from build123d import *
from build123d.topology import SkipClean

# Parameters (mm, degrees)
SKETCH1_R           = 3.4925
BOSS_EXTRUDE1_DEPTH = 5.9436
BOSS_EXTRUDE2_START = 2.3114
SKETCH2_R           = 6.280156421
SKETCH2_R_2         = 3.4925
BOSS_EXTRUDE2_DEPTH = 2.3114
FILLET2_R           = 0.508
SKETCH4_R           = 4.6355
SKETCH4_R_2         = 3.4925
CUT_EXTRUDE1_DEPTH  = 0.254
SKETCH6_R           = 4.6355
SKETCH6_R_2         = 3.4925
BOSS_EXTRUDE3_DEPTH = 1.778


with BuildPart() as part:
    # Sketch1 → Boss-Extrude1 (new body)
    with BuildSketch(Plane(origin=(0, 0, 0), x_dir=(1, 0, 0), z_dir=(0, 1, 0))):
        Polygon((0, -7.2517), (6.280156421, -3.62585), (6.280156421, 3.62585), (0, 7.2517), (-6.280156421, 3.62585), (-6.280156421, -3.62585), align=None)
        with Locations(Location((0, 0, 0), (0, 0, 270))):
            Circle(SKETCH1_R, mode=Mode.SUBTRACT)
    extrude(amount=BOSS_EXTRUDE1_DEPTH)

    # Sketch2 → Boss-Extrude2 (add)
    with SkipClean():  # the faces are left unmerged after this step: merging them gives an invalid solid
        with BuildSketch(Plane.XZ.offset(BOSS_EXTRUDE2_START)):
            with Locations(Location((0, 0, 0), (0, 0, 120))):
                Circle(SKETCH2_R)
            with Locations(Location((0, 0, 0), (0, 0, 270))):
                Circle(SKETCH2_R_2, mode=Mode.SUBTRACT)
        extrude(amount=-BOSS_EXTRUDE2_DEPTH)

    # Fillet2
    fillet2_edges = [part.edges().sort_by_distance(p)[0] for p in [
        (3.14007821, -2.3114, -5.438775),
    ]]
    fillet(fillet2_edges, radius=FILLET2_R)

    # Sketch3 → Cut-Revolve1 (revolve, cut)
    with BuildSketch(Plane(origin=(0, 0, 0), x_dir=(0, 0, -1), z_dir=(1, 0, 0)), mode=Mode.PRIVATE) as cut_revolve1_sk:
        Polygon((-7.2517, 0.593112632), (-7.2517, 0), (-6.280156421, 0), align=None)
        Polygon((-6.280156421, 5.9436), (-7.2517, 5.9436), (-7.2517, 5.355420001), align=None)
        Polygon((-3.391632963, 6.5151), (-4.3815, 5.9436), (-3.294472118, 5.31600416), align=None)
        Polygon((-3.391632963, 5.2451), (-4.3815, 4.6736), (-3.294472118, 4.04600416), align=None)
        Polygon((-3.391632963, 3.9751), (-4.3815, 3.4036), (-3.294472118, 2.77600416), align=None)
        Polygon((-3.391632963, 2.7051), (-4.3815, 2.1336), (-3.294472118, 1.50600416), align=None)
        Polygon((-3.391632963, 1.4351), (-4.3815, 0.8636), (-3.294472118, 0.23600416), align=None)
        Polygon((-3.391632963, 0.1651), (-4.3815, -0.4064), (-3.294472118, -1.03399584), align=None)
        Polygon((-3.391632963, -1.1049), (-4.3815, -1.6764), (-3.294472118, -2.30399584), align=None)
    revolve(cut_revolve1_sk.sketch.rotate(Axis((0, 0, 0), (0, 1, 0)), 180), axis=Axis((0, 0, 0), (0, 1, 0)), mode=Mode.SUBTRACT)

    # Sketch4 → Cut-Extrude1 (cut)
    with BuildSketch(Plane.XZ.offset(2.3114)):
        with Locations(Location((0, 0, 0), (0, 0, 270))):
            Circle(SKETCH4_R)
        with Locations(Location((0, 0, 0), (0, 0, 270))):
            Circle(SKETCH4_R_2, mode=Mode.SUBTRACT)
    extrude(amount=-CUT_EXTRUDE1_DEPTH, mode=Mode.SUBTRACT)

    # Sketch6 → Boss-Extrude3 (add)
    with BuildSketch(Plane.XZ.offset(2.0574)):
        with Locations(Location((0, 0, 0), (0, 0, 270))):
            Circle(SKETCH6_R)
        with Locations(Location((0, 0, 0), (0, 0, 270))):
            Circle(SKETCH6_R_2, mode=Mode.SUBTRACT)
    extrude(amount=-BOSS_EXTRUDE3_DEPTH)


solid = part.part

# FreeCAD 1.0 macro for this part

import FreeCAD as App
import Part
import Sketcher
Q = App.Units.Quantity


def edges_at(feature, points):
    """Names of the edges that pass closest to the given points."""
    edges = feature.Shape.Edges
    near = lambda p: min(range(len(edges)), key=lambda i: edges[i].distToShape(Part.Vertex(*p))[0])
    return sorted({f"Edge{near(p) + 1}" for p in points})

doc = App.newDocument("Part")
body = doc.addObject("PartDesign::Body", "Body")

# Sketch on XZ plane
sketch1 = doc.addObject("Sketcher::SketchObject", "Sketch")
body.addObject(sketch1)
sketch1.AttachmentSupport = (doc.XZ_Plane, [""])
sketch1.MapMode = "FlatFace"
sketch1.addGeometry(Part.LineSegment(App.Vector(0, 7.2517, 0), App.Vector(6.280156, 3.62585, 0)), False)
sketch1.addGeometry(Part.LineSegment(App.Vector(6.280156, 3.62585, 0), App.Vector(6.280156, -3.62585, 0)), False)
sketch1.addGeometry(Part.LineSegment(App.Vector(6.280156, -3.62585, 0), App.Vector(0, -7.2517, 0)), False)
sketch1.addGeometry(Part.LineSegment(App.Vector(0, -7.2517, 0), App.Vector(-6.280156, -3.62585, 0)), False)
sketch1.addGeometry(Part.LineSegment(App.Vector(-6.280156, -3.62585, 0), App.Vector(-6.280156, 3.62585, 0)), False)
sketch1.addGeometry(Part.LineSegment(App.Vector(-6.280156, 3.62585, 0), App.Vector(0, 7.2517, 0)), False)
sketch1.addGeometry(Part.Circle(App.Vector(0, 0, 0), App.Vector(0, 0, 1), 3.4925), False)
sketch1.addConstraint(Sketcher.Constraint("Coincident", 0, 2, 1, 1))
sketch1.addConstraint(Sketcher.Constraint("Coincident", 1, 2, 2, 1))
sketch1.addConstraint(Sketcher.Constraint("Coincident", 2, 2, 3, 1))
sketch1.addConstraint(Sketcher.Constraint("Coincident", 3, 2, 4, 1))
sketch1.addConstraint(Sketcher.Constraint("Coincident", 4, 2, 5, 1))
sketch1.addConstraint(Sketcher.Constraint("Coincident", 5, 2, 0, 1))
sketch1.addConstraint(Sketcher.Constraint("Vertical", 1))
sketch1.addConstraint(Sketcher.Constraint("Vertical", 4))
sketch1.addConstraint(Sketcher.Constraint("Coincident", 6, 3, -1, 1))
sketch1.addConstraint(Sketcher.Constraint("Symmetric", 0, 2, 3, 2, -1, 1))
sketch1.addConstraint(Sketcher.Constraint("Symmetric", 2, 2, 5, 2, -1, 1))
sketch1.addConstraint(Sketcher.Constraint("PointOnObject", 2, 2, -2))
sketch1.addConstraint(Sketcher.Constraint("Parallel", 2, 5))
sketch1.addConstraint(Sketcher.Constraint("Horizontal", 1, 2, 3, 2))
sketch1.addConstraint(Sketcher.Constraint("Diameter", 6, Q("0.275 in")))
sketch1.addConstraint(Sketcher.Constraint("Angle", 0, Q("-30 deg")))
sketch1.addConstraint(Sketcher.Constraint("DistanceY", 1, 2, 1, 1, Q("0.2855 in")))
sketch1.addConstraint(Sketcher.Constraint("Distance", 0, Q("0.2855 in")))
pad1 = doc.addObject("PartDesign::Pad", "Pad")
body.addObject(pad1)
pad1.Profile = sketch1
pad1.Length = Q("0.234 in")
pad1.Reversed = True

# Sketch on XZ plane
sketch2 = doc.addObject("Sketcher::SketchObject", "Sketch001")
body.addObject(sketch2)
sketch2.AttachmentSupport = (doc.XZ_Plane, [""])
sketch2.MapMode = "FlatFace"
sketch2.AttachmentOffset = App.Placement(App.Vector(0, 0, 0.091 * 25.4), App.Rotation())
sketch2.addGeometry(Part.Circle(App.Vector(0, 0, 0), App.Vector(0, 0, 1), 6.280156), False)
sketch2.addGeometry(Part.Circle(App.Vector(0, 0, 0), App.Vector(0, 0, 1), 3.4925), False)
sketch2.addConstraint(Sketcher.Constraint("Coincident", 0, 3, -1, 1))
sketch2.addConstraint(Sketcher.Constraint("Coincident", 1, 3, -1, 1))
sketch2.addConstraint(Sketcher.Constraint("Diameter", 1, Q("0.275 in")))
sketch2.addConstraint(Sketcher.Constraint("Diameter", 0, 12.560313))
pad2 = doc.addObject("PartDesign::Pad", "Pad001")
body.addObject(pad2)
pad2.Profile = sketch2
pad2.Length = Q("0.091 in")
pad2.Reversed = True
doc.recompute()

fillet = doc.addObject("PartDesign::Fillet", "Fillet")
body.addObject(fillet)
fillet.Base = (pad2, edges_at(pad2, [(3.14, -2.311, -5.439)]))
fillet.Radius = Q("0.02 in")

# Sketch on YZ plane
sketch3 = doc.addObject("Sketcher::SketchObject", "Sketch002")
body.addObject(sketch3)
sketch3.AttachmentSupport = (doc.YZ_Plane, [""])
sketch3.MapMode = "FlatFace"
sketch3.addGeometry(Part.LineSegment(App.Vector(0.593113, 7.2517, 0), App.Vector(0, 7.2517, 0)), False)
sketch3.addGeometry(Part.LineSegment(App.Vector(0, 7.2517, 0), App.Vector(0, 6.280156, 0)), False)
sketch3.addGeometry(Part.LineSegment(App.Vector(0, 6.280156, 0), App.Vector(0.593113, 7.2517, 0)), False)
sketch3.addGeometry(Part.LineSegment(App.Vector(5.9436, 6.280156, 0), App.Vector(5.9436, 7.2517, 0)), False)
sketch3.addGeometry(Part.LineSegment(App.Vector(5.9436, 7.2517, 0), App.Vector(5.35542, 7.2517, 0)), False)
sketch3.addGeometry(Part.LineSegment(App.Vector(5.35542, 7.2517, 0), App.Vector(5.9436, 6.280156, 0)), False)
sketch3.addGeometry(Part.LineSegment(App.Vector(6.5151, 3.391633, 0), App.Vector(5.9436, 4.3815, 0)), False)
sketch3.addGeometry(Part.LineSegment(App.Vector(5.9436, 4.3815, 0), App.Vector(5.316004, 3.294472, 0)), False)
sketch3.addGeometry(Part.LineSegment(App.Vector(5.316004, 3.294472, 0), App.Vector(6.5151, 3.391633, 0)), False)
sketch3.addGeometry(Part.LineSegment(App.Vector(5.2451, 3.391633, 0), App.Vector(4.6736, 4.3815, 0)), False)
sketch3.addGeometry(Part.LineSegment(App.Vector(4.6736, 4.3815, 0), App.Vector(4.046004, 3.294472, 0)), False)
sketch3.addGeometry(Part.LineSegment(App.Vector(4.046004, 3.294472, 0), App.Vector(5.2451, 3.391633, 0)), False)
sketch3.addGeometry(Part.LineSegment(App.Vector(3.9751, 3.391633, 0), App.Vector(3.4036, 4.3815, 0)), False)
sketch3.addGeometry(Part.LineSegment(App.Vector(3.4036, 4.3815, 0), App.Vector(2.776004, 3.294472, 0)), False)
sketch3.addGeometry(Part.LineSegment(App.Vector(2.776004, 3.294472, 0), App.Vector(3.9751, 3.391633, 0)), False)
sketch3.addGeometry(Part.LineSegment(App.Vector(2.7051, 3.391633, 0), App.Vector(2.1336, 4.3815, 0)), False)
sketch3.addGeometry(Part.LineSegment(App.Vector(2.1336, 4.3815, 0), App.Vector(1.506004, 3.294472, 0)), False)
sketch3.addGeometry(Part.LineSegment(App.Vector(1.506004, 3.294472, 0), App.Vector(2.7051, 3.391633, 0)), False)
sketch3.addGeometry(Part.LineSegment(App.Vector(1.4351, 3.391633, 0), App.Vector(0.8636, 4.3815, 0)), False)
sketch3.addGeometry(Part.LineSegment(App.Vector(0.8636, 4.3815, 0), App.Vector(0.236004, 3.294472, 0)), False)
sketch3.addGeometry(Part.LineSegment(App.Vector(0.236004, 3.294472, 0), App.Vector(1.4351, 3.391633, 0)), False)
sketch3.addGeometry(Part.LineSegment(App.Vector(0.1651, 3.391633, 0), App.Vector(-0.4064, 4.3815, 0)), False)
sketch3.addGeometry(Part.LineSegment(App.Vector(-0.4064, 4.3815, 0), App.Vector(-1.033996, 3.294472, 0)), False)
sketch3.addGeometry(Part.LineSegment(App.Vector(-1.033996, 3.294472, 0), App.Vector(0.1651, 3.391633, 0)), False)
sketch3.addGeometry(Part.LineSegment(App.Vector(-1.1049, 3.391633, 0), App.Vector(-1.6764, 4.3815, 0)), False)
sketch3.addGeometry(Part.LineSegment(App.Vector(-1.6764, 4.3815, 0), App.Vector(-2.303996, 3.294472, 0)), False)
sketch3.addGeometry(Part.LineSegment(App.Vector(-2.303996, 3.294472, 0), App.Vector(-1.1049, 3.391633, 0)), False)
sketch3.addConstraint(Sketcher.Constraint("Coincident", 0, 2, 1, 1))
sketch3.addConstraint(Sketcher.Constraint("Coincident", 1, 2, 2, 1))
sketch3.addConstraint(Sketcher.Constraint("Coincident", 2, 2, 0, 1))
sketch3.addConstraint(Sketcher.Constraint("Coincident", 3, 2, 4, 1))
sketch3.addConstraint(Sketcher.Constraint("Coincident", 4, 2, 5, 1))
sketch3.addConstraint(Sketcher.Constraint("Coincident", 5, 2, 3, 1))
sketch3.addConstraint(Sketcher.Constraint("Coincident", 6, 2, 7, 1))
sketch3.addConstraint(Sketcher.Constraint("Coincident", 7, 2, 8, 1))
sketch3.addConstraint(Sketcher.Constraint("Coincident", 8, 2, 6, 1))
sketch3.addConstraint(Sketcher.Constraint("Coincident", 9, 2, 10, 1))
sketch3.addConstraint(Sketcher.Constraint("Coincident", 10, 2, 11, 1))
sketch3.addConstraint(Sketcher.Constraint("Coincident", 11, 2, 9, 1))
sketch3.addConstraint(Sketcher.Constraint("Coincident", 12, 2, 13, 1))
sketch3.addConstraint(Sketcher.Constraint("Coincident", 13, 2, 14, 1))
sketch3.addConstraint(Sketcher.Constraint("Coincident", 14, 2, 12, 1))
sketch3.addConstraint(Sketcher.Constraint("Coincident", 15, 2, 16, 1))
sketch3.addConstraint(Sketcher.Constraint("Coincident", 16, 2, 17, 1))
sketch3.addConstraint(Sketcher.Constraint("Coincident", 17, 2, 15, 1))
sketch3.addConstraint(Sketcher.Constraint("Coincident", 18, 2, 19, 1))
sketch3.addConstraint(Sketcher.Constraint("Coincident", 19, 2, 20, 1))
sketch3.addConstraint(Sketcher.Constraint("Coincident", 20, 2, 18, 1))
sketch3.addConstraint(Sketcher.Constraint("Coincident", 21, 2, 22, 1))
sketch3.addConstraint(Sketcher.Constraint("Coincident", 22, 2, 23, 1))
sketch3.addConstraint(Sketcher.Constraint("Coincident", 23, 2, 21, 1))
sketch3.addConstraint(Sketcher.Constraint("Coincident", 24, 2, 25, 1))
sketch3.addConstraint(Sketcher.Constraint("Coincident", 25, 2, 26, 1))
sketch3.addConstraint(Sketcher.Constraint("Coincident", 26, 2, 24, 1))
sketch3.addConstraint(Sketcher.Constraint("Horizontal", 0))
sketch3.addConstraint(Sketcher.Constraint("Vertical", 1))
sketch3.addConstraint(Sketcher.Constraint("Vertical", 3))
sketch3.addConstraint(Sketcher.Constraint("Horizontal", 4))
sketch3.addConstraint(Sketcher.Constraint("PointOnObject", 0, 2, -2))
sketch3.addConstraint(Sketcher.Constraint("Parallel", 6, 9))
sketch3.addConstraint(Sketcher.Constraint("Parallel", 7, 10))
sketch3.addConstraint(Sketcher.Constraint("Parallel", 8, 11))
sketch3.addConstraint(Sketcher.Constraint("Parallel", 9, 12))
sketch3.addConstraint(Sketcher.Constraint("Parallel", 10, 13))
sketch3.addConstraint(Sketcher.Constraint("Parallel", 11, 14))
sketch3.addConstraint(Sketcher.Constraint("Parallel", 12, 15))
sketch3.addConstraint(Sketcher.Constraint("Parallel", 13, 16))
sketch3.addConstraint(Sketcher.Constraint("Parallel", 14, 17))
sketch3.addConstraint(Sketcher.Constraint("Parallel", 15, 18))
sketch3.addConstraint(Sketcher.Constraint("Parallel", 16, 19))
sketch3.addConstraint(Sketcher.Constraint("Parallel", 17, 20))
sketch3.addConstraint(Sketcher.Constraint("Parallel", 18, 21))
sketch3.addConstraint(Sketcher.Constraint("Parallel", 19, 22))
sketch3.addConstraint(Sketcher.Constraint("Parallel", 20, 23))
sketch3.addConstraint(Sketcher.Constraint("Parallel", 21, 24))
sketch3.addConstraint(Sketcher.Constraint("Parallel", 22, 25))
sketch3.addConstraint(Sketcher.Constraint("Parallel", 23, 26))
sketch3.addConstraint(Sketcher.Constraint("Horizontal", 2, 2, 3, 2))
sketch3.addConstraint(Sketcher.Constraint("Horizontal", 1, 2, 5, 2))
sketch3.addConstraint(Sketcher.Constraint("Horizontal", 6, 2, 9, 2))
sketch3.addConstraint(Sketcher.Constraint("Horizontal", 7, 2, 10, 2))
sketch3.addConstraint(Sketcher.Constraint("Horizontal", 9, 2, 12, 2))
sketch3.addConstraint(Sketcher.Constraint("Horizontal", 10, 2, 13, 2))
sketch3.addConstraint(Sketcher.Constraint("Horizontal", 12, 2, 15, 2))
sketch3.addConstraint(Sketcher.Constraint("Horizontal", 13, 2, 16, 2))
sketch3.addConstraint(Sketcher.Constraint("Horizontal", 15, 2, 18, 2))
sketch3.addConstraint(Sketcher.Constraint("Horizontal", 16, 2, 19, 2))
sketch3.addConstraint(Sketcher.Constraint("Horizontal", 18, 2, 21, 2))
sketch3.addConstraint(Sketcher.Constraint("Horizontal", 19, 2, 22, 2))
sketch3.addConstraint(Sketcher.Constraint("Horizontal", 21, 2, 24, 2))
sketch3.addConstraint(Sketcher.Constraint("Horizontal", 22, 2, 25, 2))
sketch3.addConstraint(Sketcher.Constraint("Vertical", 5, 2, 6, 2))
sketch3.addConstraint(Sketcher.Constraint("Angle", 6, Q("120 deg")))
sketch3.addConstraint(Sketcher.Constraint("Angle", 7, Q("-120 deg")))
sketch3.addConstraint(Sketcher.Constraint("DistanceX", 12, 2, 6, 2, Q("0.1 in")))
sketch3.addConstraint(Sketcher.Constraint("DistanceX", 15, 2, 9, 2, Q("0.1 in")))
sketch3.addConstraint(Sketcher.Constraint("DistanceX", 19, 2, 13, 2, Q("0.1 in")))
sketch3.addConstraint(Sketcher.Constraint("DistanceX", 22, 2, 16, 2, Q("0.1 in")))
sketch3.addConstraint(Sketcher.Constraint("DistanceX", 25, 2, 19, 2, Q("0.1 in")))
sketch3.addConstraint(Sketcher.Constraint("DistanceX", 9, 2, 6, 2, Q("0.05 in")))
sketch3.addConstraint(Sketcher.Constraint("Distance", 6, Q("0.045 in")))
sketch3.addConstraint(Sketcher.Constraint("DistanceX", -1, 1, 3, 2, Q("0.234 in")))
sketch3.addConstraint(Sketcher.Constraint("DistanceY", 6, 2, 3, 2, Q("0.113 in")))
sketch3.addConstraint(Sketcher.Constraint("DistanceY", -1, 1, 0, 2, Q("0.2855 in")))
sketch3.addConstraint(Sketcher.Constraint("DistanceX", 4, 2, 4, 1, 0.58818))
sketch3.addConstraint(Sketcher.Constraint("Distance", 2, 1.138279))
sketch3.addConstraint(Sketcher.Constraint("Distance", 7, 1.255192))
sketch3.addConstraint(Sketcher.Constraint("DistanceX", 0, 2, 0, 1, 0.593113))
groove = doc.addObject("PartDesign::Groove", "Groove")
body.addObject(groove)
groove.Profile = sketch3
groove.ReferenceAxis = (sketch3, ["H_Axis"])
groove.Angle = 360

# Sketch on XZ plane
sketch4 = doc.addObject("Sketcher::SketchObject", "Sketch003")
body.addObject(sketch4)
sketch4.AttachmentSupport = (doc.XZ_Plane, [""])
sketch4.MapMode = "FlatFace"
sketch4.AttachmentOffset = App.Placement(App.Vector(0, 0, 0.091 * 25.4), App.Rotation())
sketch4.addGeometry(Part.Circle(App.Vector(0, 0, 0), App.Vector(0, 0, 1), 4.6355), False)
sketch4.addGeometry(Part.Circle(App.Vector(0, 0, 0), App.Vector(0, 0, 1), 3.4925), False)
sketch4.addConstraint(Sketcher.Constraint("Coincident", 0, 3, -1, 1))
sketch4.addConstraint(Sketcher.Constraint("Coincident", 1, 3, -1, 1))
sketch4.addConstraint(Sketcher.Constraint("Diameter", 0, Q("0.365 in")))
sketch4.addConstraint(Sketcher.Constraint("Diameter", 1, Q("0.275 in")))
pocket1 = doc.addObject("PartDesign::Pocket", "Pocket")
body.addObject(pocket1)
pocket1.Profile = sketch4
pocket1.Length = Q("0.01 in")

# Sketch on XZ plane
sketch5 = doc.addObject("Sketcher::SketchObject", "Sketch004")
body.addObject(sketch5)
sketch5.AttachmentSupport = (doc.XZ_Plane, [""])
sketch5.MapMode = "FlatFace"
sketch5.AttachmentOffset = App.Placement(App.Vector(0, 0, 0.081 * 25.4), App.Rotation())
sketch5.addGeometry(Part.Circle(App.Vector(0, 0, 0), App.Vector(0, 0, 1), 4.6355), False)
sketch5.addGeometry(Part.Circle(App.Vector(0, 0, 0), App.Vector(0, 0, 1), 3.4925), False)
sketch5.addConstraint(Sketcher.Constraint("Coincident", 0, 3, -1, 1))
sketch5.addConstraint(Sketcher.Constraint("Coincident", 1, 3, -1, 1))
sketch5.addConstraint(Sketcher.Constraint("Diameter", 0, Q("0.365 in")))
sketch5.addConstraint(Sketcher.Constraint("Diameter", 1, Q("0.275 in")))
pad3 = doc.addObject("PartDesign::Pad", "Pad002")
body.addObject(pad3)
pad3.Profile = sketch5
pad3.Length = Q("0.07 in")
pad3.Reversed = True

doc.recompute()
